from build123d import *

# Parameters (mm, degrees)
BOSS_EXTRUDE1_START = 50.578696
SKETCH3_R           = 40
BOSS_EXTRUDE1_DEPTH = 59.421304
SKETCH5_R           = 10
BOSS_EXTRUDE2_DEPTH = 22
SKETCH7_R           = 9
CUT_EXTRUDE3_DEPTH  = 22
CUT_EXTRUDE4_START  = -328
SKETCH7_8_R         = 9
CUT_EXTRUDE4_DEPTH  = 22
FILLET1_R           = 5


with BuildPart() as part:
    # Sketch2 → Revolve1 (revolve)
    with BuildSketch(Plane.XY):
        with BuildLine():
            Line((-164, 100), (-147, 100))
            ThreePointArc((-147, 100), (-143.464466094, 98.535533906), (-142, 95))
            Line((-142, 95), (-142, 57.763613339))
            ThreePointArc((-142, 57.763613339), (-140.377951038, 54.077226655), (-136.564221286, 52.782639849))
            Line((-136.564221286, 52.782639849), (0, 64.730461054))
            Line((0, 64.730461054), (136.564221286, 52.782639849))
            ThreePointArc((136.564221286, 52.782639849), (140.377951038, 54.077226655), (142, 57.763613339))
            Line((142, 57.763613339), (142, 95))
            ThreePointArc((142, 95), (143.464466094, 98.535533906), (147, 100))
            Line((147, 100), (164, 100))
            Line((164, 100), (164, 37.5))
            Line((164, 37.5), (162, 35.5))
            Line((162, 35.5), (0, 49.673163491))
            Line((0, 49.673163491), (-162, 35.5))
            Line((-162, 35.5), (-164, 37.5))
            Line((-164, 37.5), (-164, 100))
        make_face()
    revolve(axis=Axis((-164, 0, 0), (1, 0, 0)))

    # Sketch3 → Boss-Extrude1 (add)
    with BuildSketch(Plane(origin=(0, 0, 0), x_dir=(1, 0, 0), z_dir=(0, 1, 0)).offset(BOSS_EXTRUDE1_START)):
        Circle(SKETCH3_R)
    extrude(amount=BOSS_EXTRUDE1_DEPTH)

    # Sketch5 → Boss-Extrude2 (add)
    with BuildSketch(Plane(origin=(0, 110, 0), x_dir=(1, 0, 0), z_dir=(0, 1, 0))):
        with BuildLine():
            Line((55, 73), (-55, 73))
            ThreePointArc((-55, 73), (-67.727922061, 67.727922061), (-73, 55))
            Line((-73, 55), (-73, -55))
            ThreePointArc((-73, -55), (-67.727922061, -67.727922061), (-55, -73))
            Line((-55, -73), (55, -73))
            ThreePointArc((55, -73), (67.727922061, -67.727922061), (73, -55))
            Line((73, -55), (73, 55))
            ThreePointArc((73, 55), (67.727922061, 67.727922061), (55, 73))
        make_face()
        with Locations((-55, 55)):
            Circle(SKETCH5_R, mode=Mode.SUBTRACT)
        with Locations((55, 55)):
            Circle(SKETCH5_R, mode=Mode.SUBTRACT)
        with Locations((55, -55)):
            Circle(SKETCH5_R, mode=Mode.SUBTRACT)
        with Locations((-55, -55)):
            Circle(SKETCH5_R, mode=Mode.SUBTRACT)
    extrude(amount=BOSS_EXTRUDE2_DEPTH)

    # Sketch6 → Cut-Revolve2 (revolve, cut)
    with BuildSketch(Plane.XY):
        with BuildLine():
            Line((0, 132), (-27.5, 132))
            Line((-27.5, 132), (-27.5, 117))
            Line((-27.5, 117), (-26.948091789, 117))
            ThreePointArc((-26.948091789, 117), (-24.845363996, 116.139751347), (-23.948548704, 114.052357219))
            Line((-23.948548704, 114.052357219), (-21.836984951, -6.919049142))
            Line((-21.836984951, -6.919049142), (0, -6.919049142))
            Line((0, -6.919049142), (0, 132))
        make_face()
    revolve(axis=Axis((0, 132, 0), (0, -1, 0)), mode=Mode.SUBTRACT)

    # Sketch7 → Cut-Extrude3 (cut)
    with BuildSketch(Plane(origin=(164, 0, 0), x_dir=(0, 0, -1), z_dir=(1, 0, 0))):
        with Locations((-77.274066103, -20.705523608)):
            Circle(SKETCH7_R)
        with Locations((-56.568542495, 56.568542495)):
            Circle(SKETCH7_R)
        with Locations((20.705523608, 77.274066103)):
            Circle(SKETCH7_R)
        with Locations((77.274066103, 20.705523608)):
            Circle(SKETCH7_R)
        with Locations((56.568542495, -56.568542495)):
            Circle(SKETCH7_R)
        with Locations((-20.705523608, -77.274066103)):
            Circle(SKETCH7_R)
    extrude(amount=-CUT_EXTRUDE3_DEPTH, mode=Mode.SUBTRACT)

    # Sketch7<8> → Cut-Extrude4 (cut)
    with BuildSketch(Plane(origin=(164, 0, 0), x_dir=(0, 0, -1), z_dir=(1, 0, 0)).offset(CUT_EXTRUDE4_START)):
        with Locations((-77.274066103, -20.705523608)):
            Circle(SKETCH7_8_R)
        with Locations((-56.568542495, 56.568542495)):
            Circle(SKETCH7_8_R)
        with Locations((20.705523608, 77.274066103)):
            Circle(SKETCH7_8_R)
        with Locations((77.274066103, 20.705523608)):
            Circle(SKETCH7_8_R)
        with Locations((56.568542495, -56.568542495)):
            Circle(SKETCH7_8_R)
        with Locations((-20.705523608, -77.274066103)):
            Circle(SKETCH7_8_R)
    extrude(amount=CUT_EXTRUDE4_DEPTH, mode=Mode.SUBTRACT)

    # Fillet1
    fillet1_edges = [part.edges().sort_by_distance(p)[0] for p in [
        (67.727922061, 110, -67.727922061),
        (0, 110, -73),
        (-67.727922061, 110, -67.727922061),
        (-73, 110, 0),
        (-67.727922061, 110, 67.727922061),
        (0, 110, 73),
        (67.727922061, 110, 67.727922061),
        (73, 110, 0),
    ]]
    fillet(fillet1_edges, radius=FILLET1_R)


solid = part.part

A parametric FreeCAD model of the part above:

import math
import FreeCAD as App
import Part
import Sketcher
Q = App.Units.Quantity


def edges_at(feature, points):
    """Names of the edges that pass closest to the given points."""
    edges = feature.Shape.Edges
    near = lambda p: min(range(len(edges)), key=lambda i: edges[i].distToShape(Part.Vertex(*p))[0])
    return sorted({f"Edge{near(p) + 1}" for p in points})

doc = App.newDocument("Part")
body = doc.addObject("PartDesign::Body", "Body")

# Sketch on XY plane
sketch1 = body.newObject("Sketcher::SketchObject", "Sketch")
sketch1.AttachmentSupport = (doc.getObject("XY_Plane"), [""])
sketch1.MapMode = "FlatFace"
sketch1.addGeometry([
    Part.LineSegment(App.Vector(-147, 100, 0), App.Vector(-164, 100, 0)),  # 0
    Part.LineSegment(App.Vector(-164, 100, 0), App.Vector(-164, 37.5, 0)),  # 1
    Part.LineSegment(App.Vector(-164, 37.5, 0), App.Vector(-162, 35.5, 0)),  # 2
    Part.LineSegment(App.Vector(-162, 35.5, 0), App.Vector(0, 49.673163, 0)),  # 3
    Part.LineSegment(App.Vector(0, 49.673163, 0), App.Vector(162, 35.5, 0)),  # 4
    Part.LineSegment(App.Vector(162, 35.5, 0), App.Vector(164, 37.5, 0)),  # 5
    Part.LineSegment(App.Vector(164, 37.5, 0), App.Vector(164, 100, 0)),  # 6
    Part.LineSegment(App.Vector(164, 100, 0), App.Vector(147, 100, 0)),  # 7
    Part.ArcOfCircle(Part.Circle(App.Vector(147, 95, 0), App.Vector(0, 0, 1), 5), math.radians(90), math.radians(180)),  # 8
    Part.LineSegment(App.Vector(142, 95, 0), App.Vector(142, 57.763613, 0)),  # 9
    Part.ArcOfCircle(Part.Circle(App.Vector(137, 57.763613, 0), App.Vector(0, 0, 1), 5), math.radians(-95), math.radians(0)),  # 10
    Part.LineSegment(App.Vector(136.564221, 52.78264, 0), App.Vector(0, 64.730461, 0)),  # 11
    Part.LineSegment(App.Vector(0, 64.730461, 0), App.Vector(-136.564221, 52.78264, 0)),  # 12
    Part.ArcOfCircle(Part.Circle(App.Vector(-137, 57.763613, 0), App.Vector(0, 0, 1), 5), math.radians(180), math.radians(275)),  # 13
    Part.LineSegment(App.Vector(-142, 57.763613, 0), App.Vector(-142, 95, 0)),  # 14
    Part.ArcOfCircle(Part.Circle(App.Vector(-147, 95, 0), App.Vector(0, 0, 1), 5), math.radians(0), math.radians(90)),  # 15
], False)
sketch1.addConstraint([
    Sketcher.Constraint("Coincident", 0, 2, 1, 1),
    Sketcher.Constraint("Coincident", 1, 2, 2, 1),
    Sketcher.Constraint("Coincident", 2, 2, 3, 1),
    Sketcher.Constraint("Coincident", 3, 2, 4, 1),
    Sketcher.Constraint("Coincident", 4, 2, 5, 1),
    Sketcher.Constraint("Coincident", 5, 2, 6, 1),
    Sketcher.Constraint("Coincident", 6, 2, 7, 1),
    Sketcher.Constraint("Tangent", 7, 2, 8, 1),
    Sketcher.Constraint("Tangent", 8, 2, 9, 1),
    Sketcher.Constraint("Tangent", 9, 2, 10, 2),
    Sketcher.Constraint("Tangent", 10, 1, 11, 1),
    Sketcher.Constraint("Coincident", 11, 2, 12, 1),
    Sketcher.Constraint("Tangent", 12, 2, 13, 2),
    Sketcher.Constraint("Tangent", 13, 1, 14, 1),
    Sketcher.Constraint("Tangent", 14, 2, 15, 1),
    Sketcher.Constraint("Tangent", 15, 2, 0, 1),
    Sketcher.Constraint("Horizontal", 0),
    Sketcher.Constraint("Vertical", 1),
    Sketcher.Constraint("Vertical", 6),
    Sketcher.Constraint("Horizontal", 7),
    Sketcher.Constraint("Vertical", 9),
    Sketcher.Constraint("Vertical", 14),
    Sketcher.Constraint("Equal", 8, 10),
    Sketcher.Constraint("Equal", 10, 13),
    Sketcher.Constraint("Equal", 13, 15),
    Sketcher.Constraint("Symmetric", 10, 3, 13, 3, -2),
    Sketcher.Constraint("Symmetric", 2, 2, 4, 2, -2),
    Sketcher.Constraint("Symmetric", 1, 2, 5, 2, -2),
    Sketcher.Constraint("PointOnObject", 3, 2, -2),
    Sketcher.Constraint("PointOnObject", 11, 2, -2),
    Sketcher.Constraint("Perpendicular", 2, 5),
    Sketcher.Constraint("Parallel", 4, 11),
    Sketcher.Constraint("Horizontal", 8, 3, 15, 3),
    Sketcher.Constraint("Radius", 8, 5.0),
    Sketcher.Constraint("DistanceX", 0, 2, 0, 1, 17.0),
    Sketcher.Constraint("Angle", 3, Q("5 deg")),
    Sketcher.Constraint("DistanceY", 1, 2, 1, 1, 62.5),
    Sketcher.Constraint("DistanceX", -1, 1, 8, 3, 147.0),
    Sketcher.Constraint("DistanceY", -1, 1, 8, 3, 95.0),
    Sketcher.Constraint("DistanceX", 2, 2, -1, 1, 162.0),
    Sketcher.Constraint("DistanceY", 9, 2, 9, 1, 37.236387),
])
revolution = body.newObject("PartDesign::Revolution", "Revolution")
revolution.Profile = sketch1
revolution.ReferenceAxis = (sketch1, ["H_Axis"])
revolution.Angle = 360

# Sketch on XZ plane
sketch2 = body.newObject("Sketcher::SketchObject", "Sketch001")
sketch2.AttachmentSupport = (doc.getObject("XZ_Plane"), [""])
sketch2.MapMode = "FlatFace"
sketch2.AttachmentOffset = App.Placement(App.Vector(0, 0, -50.578696), App.Rotation())
sketch2.addGeometry(Part.Circle(App.Vector(0, 0, 0), App.Vector(0, 0, 1), 40), False)
sketch2.addConstraint([
    Sketcher.Constraint("Coincident", 0, 3, -1, 1),
    Sketcher.Constraint("Diameter", 0, 80.0),
])
pad1 = body.newObject("PartDesign::Pad", "Pad")
pad1.Profile = sketch2
pad1.Length = 59.421304
pad1.Reversed = True

# Sketch on XZ plane
sketch3 = body.newObject("Sketcher::SketchObject", "Sketch002")
sketch3.AttachmentSupport = (doc.getObject("XZ_Plane"), [""])
sketch3.MapMode = "FlatFace"
sketch3.AttachmentOffset = App.Placement(App.Vector(0, 0, -110), App.Rotation())
sketch3.addGeometry([
    Part.LineSegment(App.Vector(55, -73, 0), App.Vector(-55, -73, 0)),  # 0
    Part.ArcOfCircle(Part.Circle(App.Vector(-55, -55, 0), App.Vector(0, 0, 1), 18), math.radians(-180), math.radians(-90)),  # 1
    Part.LineSegment(App.Vector(-73, -55, 0), App.Vector(-73, 55, 0)),  # 2
    Part.ArcOfCircle(Part.Circle(App.Vector(-55, 55, 0), App.Vector(0, 0, 1), 18), math.radians(90), math.radians(180)),  # 3
    Part.LineSegment(App.Vector(-55, 73, 0), App.Vector(55, 73, 0)),  # 4
    Part.ArcOfCircle(Part.Circle(App.Vector(55, 55, 0), App.Vector(0, 0, 1), 18), math.radians(0), math.radians(90)),  # 5
    Part.LineSegment(App.Vector(73, 55, 0), App.Vector(73, -55, 0)),  # 6
    Part.ArcOfCircle(Part.Circle(App.Vector(55, -55, 0), App.Vector(0, 0, 1), 18), math.radians(-90), math.radians(0)),  # 7
    Part.Circle(App.Vector(-55, 55, 0), App.Vector(0, 0, 1), 10),  # 8
    Part.Circle(App.Vector(55, 55, 0), App.Vector(0, 0, 1), 10),  # 9
    Part.Circle(App.Vector(-55, -55, 0), App.Vector(0, 0, 1), 10),  # 10
    Part.Circle(App.Vector(55, -55, 0), App.Vector(0, 0, 1), 10),  # 11
], False)
sketch3.addConstraint([
    Sketcher.Constraint("Tangent", 0, 2, 1, 2),
    Sketcher.Constraint("Tangent", 1, 1, 2, 1),
    Sketcher.Constraint("Tangent", 2, 2, 3, 2),
    Sketcher.Constraint("Tangent", 3, 1, 4, 1),
    Sketcher.Constraint("Tangent", 4, 2, 5, 2),
    Sketcher.Constraint("Tangent", 5, 1, 6, 1),
    Sketcher.Constraint("Tangent", 6, 2, 7, 2),
    Sketcher.Constraint("Tangent", 7, 1, 0, 1),
    Sketcher.Constraint("Horizontal", 0),
    Sketcher.Constraint("Vertical", 2),
    Sketcher.Constraint("Horizontal", 4),
    Sketcher.Constraint("Vertical", 6),
    Sketcher.Constraint("Coincident", 8, 3, 3, 3),
    Sketcher.Constraint("Coincident", 9, 3, 5, 3),
    Sketcher.Constraint("Coincident", 10, 3, 1, 3),
    Sketcher.Constraint("Coincident", 11, 3, 7, 3),
    Sketcher.Constraint("Equal", 1, 3),
    Sketcher.Constraint("Equal", 3, 5),
    Sketcher.Constraint("Equal", 5, 7),
    Sketcher.Constraint("Equal", 8, 9),
    Sketcher.Constraint("Equal", 9, 10),
    Sketcher.Constraint("Equal", 10, 11),
    Sketcher.Constraint("Symmetric", 1, 3, 5, 3, -1, 1),
    Sketcher.Constraint("Equal", 4, 2),
    Sketcher.Constraint("Diameter", 8, 20.0),
    Sketcher.Constraint("Radius", 1, 18.0),
    Sketcher.Constraint("DistanceX", 0, 2, 0, 1, 110.0),
])
pad2 = body.newObject("PartDesign::Pad", "Pad001")
pad2.Profile = sketch3
pad2.Length = 22
pad2.Reversed = True

# Sketch on XY plane
sketch4 = body.newObject("Sketcher::SketchObject", "Sketch003")
sketch4.AttachmentSupport = (doc.getObject("XY_Plane"), [""])
sketch4.MapMode = "FlatFace"
sketch4.addGeometry([
    Part.LineSegment(App.Vector(0, 132, 0), App.Vector(-27.5, 132, 0)),  # 0
    Part.LineSegment(App.Vector(-27.5, 132, 0), App.Vector(-27.5, 117, 0)),  # 1
    Part.LineSegment(App.Vector(-27.5, 117, 0), App.Vector(-26.948092, 117, 0)),  # 2
    Part.ArcOfCircle(Part.Circle(App.Vector(-26.948092, 114, 0), App.Vector(0, 0, 1), 3), math.radians(1), math.radians(90)),  # 3
    Part.LineSegment(App.Vector(-23.948549, 114.052357, 0), App.Vector(-21.836985, -6.919049, 0)),  # 4
    Part.LineSegment(App.Vector(-21.836985, -6.919049, 0), App.Vector(0, -6.919049, 0)),  # 5
    Part.LineSegment(App.Vector(0, -6.919049, 0), App.Vector(0, 132, 0)),  # 6
], False)
sketch4.addConstraint([
    Sketcher.Constraint("Coincident", 0, 2, 1, 1),
    Sketcher.Constraint("Coincident", 1, 2, 2, 1),
    Sketcher.Constraint("Tangent", 2, 2, 3, 2),
    Sketcher.Constraint("Tangent", 3, 1, 4, 1),
    Sketcher.Constraint("Coincident", 4, 2, 5, 1),
    Sketcher.Constraint("Coincident", 5, 2, 6, 1),
    Sketcher.Constraint("Coincident", 6, 2, 0, 1),
    Sketcher.Constraint("Horizontal", 0),
    Sketcher.Constraint("Vertical", 1),
    Sketcher.Constraint("Horizontal", 2),
    Sketcher.Constraint("Horizontal", 5),
    Sketcher.Constraint("Vertical", 6),
    Sketcher.Constraint("PointOnObject", 5, 2, -2),
    Sketcher.Constraint("Radius", 3, 3.0),
    Sketcher.Constraint("DistanceY", 1, 2, 1, 1, 15.0),
    Sketcher.Constraint("Angle", 4, Q("-89 deg")),
    Sketcher.Constraint("DistanceX", 0, 2, 0, 1, 27.5),
    Sketcher.Constraint("DistanceY", -1, 1, 3, 3, 114.0),
    Sketcher.Constraint("DistanceX", 2, 1, 2, 2, 0.551908),
    Sketcher.Constraint("DistanceY", 6, 1, 6, 2, 138.919049),
])
groove = body.newObject("PartDesign::Groove", "Groove")
groove.Profile = sketch4
groove.ReferenceAxis = (sketch4, ["V_Axis"])
groove.Angle = 360

# Sketch on YZ plane
sketch5 = body.newObject("Sketcher::SketchObject", "Sketch004")
sketch5.AttachmentSupport = (doc.getObject("YZ_Plane"), [""])
sketch5.MapMode = "FlatFace"
sketch5.AttachmentOffset = App.Placement(App.Vector(0, 0, 164), App.Rotation())
sketch5.addGeometry([
    Part.Circle(App.Vector(-20.705524, 77.274066, 0), App.Vector(0, 0, 1), 9),  # 0
    Part.Circle(App.Vector(56.568542, 56.568542, 0), App.Vector(0, 0, 1), 9),  # 1
    Part.Circle(App.Vector(77.274066, -20.705524, 0), App.Vector(0, 0, 1), 9),  # 2
    Part.Circle(App.Vector(20.705524, -77.274066, 0), App.Vector(0, 0, 1), 9),  # 3
    Part.Circle(App.Vector(-56.568542, -56.568542, 0), App.Vector(0, 0, 1), 9),  # 4
    Part.Circle(App.Vector(-77.274066, 20.705524, 0), App.Vector(0, 0, 1), 9),  # 5
], False)
sketch5.addConstraint([
    Sketcher.Constraint("Equal", 0, 1),
    Sketcher.Constraint("Equal", 1, 2),
    Sketcher.Constraint("Equal", 2, 3),
    Sketcher.Constraint("Equal", 3, 4),
    Sketcher.Constraint("Equal", 4, 5),
    Sketcher.Constraint("Symmetric", 0, 3, 3, 3, -1, 1),
    Sketcher.Constraint("Symmetric", 1, 3, 4, 3, -1, 1),
    Sketcher.Constraint("Symmetric", 2, 3, 5, 3, -1, 1),
    Sketcher.Constraint("Diameter", 0, 18.0),
    Sketcher.Constraint("DistanceX", 0, 3, 2, 3, 97.97959),
    Sketcher.Constraint("DistanceY", 2, 3, 0, 3, 97.97959),
    Sketcher.Constraint("DistanceX", 3, 3, 1, 3, 35.863019),
    Sketcher.Constraint("DistanceY", 3, 3, 1, 3, 133.842609),
    Sketcher.Constraint("DistanceX", 0, 3, -1, 1, 20.705524),
    Sketcher.Constraint("DistanceY", -1, 1, 0, 3, 77.274066),
])
pocket1 = body.newObject("PartDesign::Pocket", "Pocket")
pocket1.Profile = sketch5
pocket1.Length = 22

# Sketch on YZ plane
sketch6 = body.newObject("Sketcher::SketchObject", "Sketch005")
sketch6.AttachmentSupport = (doc.getObject("YZ_Plane"), [""])
sketch6.MapMode = "FlatFace"
sketch6.AttachmentOffset = App.Placement(App.Vector(0, 0, -164), App.Rotation())
sketch6.addGeometry([
    Part.Circle(App.Vector(-20.705524, 77.274066, 0), App.Vector(0, 0, 1), 9),  # 0
    Part.Circle(App.Vector(56.568542, 56.568542, 0), App.Vector(0, 0, 1), 9),  # 1
    Part.Circle(App.Vector(77.274066, -20.705524, 0), App.Vector(0, 0, 1), 9),  # 2
    Part.Circle(App.Vector(20.705524, -77.274066, 0), App.Vector(0, 0, 1), 9),  # 3
    Part.Circle(App.Vector(-56.568542, -56.568542, 0), App.Vector(0, 0, 1), 9),  # 4
    Part.Circle(App.Vector(-77.274066, 20.705524, 0), App.Vector(0, 0, 1), 9),  # 5
], False)
sketch6.addConstraint([
    Sketcher.Constraint("Equal", 0, 1),
    Sketcher.Constraint("Equal", 1, 2),
    Sketcher.Constraint("Equal", 2, 3),
    Sketcher.Constraint("Equal", 3, 4),
    Sketcher.Constraint("Equal", 4, 5),
    Sketcher.Constraint("Symmetric", 0, 3, 3, 3, -1, 1),
    Sketcher.Constraint("Symmetric", 1, 3, 4, 3, -1, 1),
    Sketcher.Constraint("Symmetric", 2, 3, 5, 3, -1, 1),
    Sketcher.Constraint("Diameter", 0, 18.0),
    Sketcher.Constraint("DistanceX", 0, 3, 2, 3, 97.97959),
    Sketcher.Constraint("DistanceY", 2, 3, 0, 3, 97.97959),
    Sketcher.Constraint("DistanceX", 3, 3, 1, 3, 35.863019),
    Sketcher.Constraint("DistanceY", 3, 3, 1, 3, 133.842609),
    Sketcher.Constraint("DistanceX", 0, 3, -1, 1, 20.705524),
    Sketcher.Constraint("DistanceY", -1, 1, 0, 3, 77.274066),
])
pocket2 = body.newObject("PartDesign::Pocket", "Pocket001")
pocket2.Profile = sketch6
pocket2.Length = 22
pocket2.Reversed = True
doc.recompute()

fillet = body.newObject("PartDesign::Fillet", "Fillet")
fillet.Base = (pocket2, edges_at(pocket2, [
    (67.728, 110, -67.728),
    (0, 110, -73),
    (-67.728, 110, -67.728),
    (-73, 110, 0),
    (-67.728, 110, 67.728),
    (0, 110, 73),
    (67.728, 110, 67.728),
    (73, 110, 0),
]))
fillet.Radius = 5

doc.recompute()
